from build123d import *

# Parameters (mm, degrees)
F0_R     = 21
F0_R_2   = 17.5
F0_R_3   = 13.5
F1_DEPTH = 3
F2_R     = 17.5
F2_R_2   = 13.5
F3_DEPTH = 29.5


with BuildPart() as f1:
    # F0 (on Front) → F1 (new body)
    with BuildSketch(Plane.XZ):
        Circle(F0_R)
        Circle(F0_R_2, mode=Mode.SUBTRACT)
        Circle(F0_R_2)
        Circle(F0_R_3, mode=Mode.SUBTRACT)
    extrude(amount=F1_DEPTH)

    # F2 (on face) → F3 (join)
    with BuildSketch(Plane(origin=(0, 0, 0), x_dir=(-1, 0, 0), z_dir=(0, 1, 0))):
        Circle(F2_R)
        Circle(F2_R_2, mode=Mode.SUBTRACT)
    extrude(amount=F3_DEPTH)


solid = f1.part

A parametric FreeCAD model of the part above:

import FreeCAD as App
import Part
import Sketcher

doc = App.newDocument("Part")
params = doc.addObject("Spreadsheet::Sheet", "Params")
for row, (alias, value) in enumerate([
    ("sketch1_diameter", "42 mm"),
    ("sketch1_diameter2", "27 mm"),
    ("pad1_length", "3 mm"),
    ("sketch2_diameter", "35 mm"),
    ("sketch2_diameter2", "27 mm"),
    ("pad2_length", "29.5 mm"),
], start=1):
    params.set(f"A{row}", alias)
    params.set(f"B{row}", "=" + value)
    params.setAlias(f"B{row}", alias)

body = doc.addObject("PartDesign::Body", "Body")

sketch1 = body.newObject("Sketcher::SketchObject", "Sketch")
sketch1.AttachmentSupport = (doc.getObject("XZ_Plane"), [""])
sketch1.MapMode = "FlatFace"
sketch1.addGeometry(Part.Circle(App.Vector(0, 0, 0), App.Vector(0, 0, 1), 21), False)
sketch1.addGeometry(Part.Circle(App.Vector(0, 0, 0), App.Vector(0, 0, 1), 14), False)
sketch1.addConstraint(Sketcher.Constraint("Coincident", 0, 3, -1, 1))
sketch1.addConstraint(Sketcher.Constraint("Coincident", 1, 3, -1, 1))
sketch1.addConstraint(Sketcher.Constraint("Diameter", 0, 42.0))
sketch1.addConstraint(Sketcher.Constraint("Diameter", 1, 27.0))
sketch1.setExpression("Constraints[2]", "Params.sketch1_diameter")
sketch1.setExpression("Constraints[3]", "Params.sketch1_diameter2")
pad1 = body.newObject("PartDesign::Pad", "Pad")
pad1.Profile = sketch1
pad1.setExpression("Length", "Params.pad1_length")

sketch2 = body.newObject("Sketcher::SketchObject", "Sketch001")
sketch2.AttachmentSupport = (doc.getObject("XZ_Plane"), [""])
sketch2.MapMode = "FlatFace"
sketch2.addGeometry(Part.Circle(App.Vector(0, 0, 0), App.Vector(0, 0, 1), 18), False)
sketch2.addGeometry(Part.Circle(App.Vector(0, 0, 0), App.Vector(0, 0, 1), 14), False)
sketch2.addConstraint(Sketcher.Constraint("Coincident", 0, 3, -1, 1))
sketch2.addConstraint(Sketcher.Constraint("Coincident", 1, 3, -1, 1))
sketch2.addConstraint(Sketcher.Constraint("Diameter", 0, 35.0))
sketch2.addConstraint(Sketcher.Constraint("Diameter", 1, 27.0))
sketch2.setExpression("Constraints[2]", "Params.sketch2_diameter")
sketch2.setExpression("Constraints[3]", "Params.sketch2_diameter2")
pad2 = body.newObject("PartDesign::Pad", "Pad001")
pad2.Profile = sketch2
pad2.setExpression("Length", "Params.pad2_length")
pad2.Reversed = True

doc.recompute()
